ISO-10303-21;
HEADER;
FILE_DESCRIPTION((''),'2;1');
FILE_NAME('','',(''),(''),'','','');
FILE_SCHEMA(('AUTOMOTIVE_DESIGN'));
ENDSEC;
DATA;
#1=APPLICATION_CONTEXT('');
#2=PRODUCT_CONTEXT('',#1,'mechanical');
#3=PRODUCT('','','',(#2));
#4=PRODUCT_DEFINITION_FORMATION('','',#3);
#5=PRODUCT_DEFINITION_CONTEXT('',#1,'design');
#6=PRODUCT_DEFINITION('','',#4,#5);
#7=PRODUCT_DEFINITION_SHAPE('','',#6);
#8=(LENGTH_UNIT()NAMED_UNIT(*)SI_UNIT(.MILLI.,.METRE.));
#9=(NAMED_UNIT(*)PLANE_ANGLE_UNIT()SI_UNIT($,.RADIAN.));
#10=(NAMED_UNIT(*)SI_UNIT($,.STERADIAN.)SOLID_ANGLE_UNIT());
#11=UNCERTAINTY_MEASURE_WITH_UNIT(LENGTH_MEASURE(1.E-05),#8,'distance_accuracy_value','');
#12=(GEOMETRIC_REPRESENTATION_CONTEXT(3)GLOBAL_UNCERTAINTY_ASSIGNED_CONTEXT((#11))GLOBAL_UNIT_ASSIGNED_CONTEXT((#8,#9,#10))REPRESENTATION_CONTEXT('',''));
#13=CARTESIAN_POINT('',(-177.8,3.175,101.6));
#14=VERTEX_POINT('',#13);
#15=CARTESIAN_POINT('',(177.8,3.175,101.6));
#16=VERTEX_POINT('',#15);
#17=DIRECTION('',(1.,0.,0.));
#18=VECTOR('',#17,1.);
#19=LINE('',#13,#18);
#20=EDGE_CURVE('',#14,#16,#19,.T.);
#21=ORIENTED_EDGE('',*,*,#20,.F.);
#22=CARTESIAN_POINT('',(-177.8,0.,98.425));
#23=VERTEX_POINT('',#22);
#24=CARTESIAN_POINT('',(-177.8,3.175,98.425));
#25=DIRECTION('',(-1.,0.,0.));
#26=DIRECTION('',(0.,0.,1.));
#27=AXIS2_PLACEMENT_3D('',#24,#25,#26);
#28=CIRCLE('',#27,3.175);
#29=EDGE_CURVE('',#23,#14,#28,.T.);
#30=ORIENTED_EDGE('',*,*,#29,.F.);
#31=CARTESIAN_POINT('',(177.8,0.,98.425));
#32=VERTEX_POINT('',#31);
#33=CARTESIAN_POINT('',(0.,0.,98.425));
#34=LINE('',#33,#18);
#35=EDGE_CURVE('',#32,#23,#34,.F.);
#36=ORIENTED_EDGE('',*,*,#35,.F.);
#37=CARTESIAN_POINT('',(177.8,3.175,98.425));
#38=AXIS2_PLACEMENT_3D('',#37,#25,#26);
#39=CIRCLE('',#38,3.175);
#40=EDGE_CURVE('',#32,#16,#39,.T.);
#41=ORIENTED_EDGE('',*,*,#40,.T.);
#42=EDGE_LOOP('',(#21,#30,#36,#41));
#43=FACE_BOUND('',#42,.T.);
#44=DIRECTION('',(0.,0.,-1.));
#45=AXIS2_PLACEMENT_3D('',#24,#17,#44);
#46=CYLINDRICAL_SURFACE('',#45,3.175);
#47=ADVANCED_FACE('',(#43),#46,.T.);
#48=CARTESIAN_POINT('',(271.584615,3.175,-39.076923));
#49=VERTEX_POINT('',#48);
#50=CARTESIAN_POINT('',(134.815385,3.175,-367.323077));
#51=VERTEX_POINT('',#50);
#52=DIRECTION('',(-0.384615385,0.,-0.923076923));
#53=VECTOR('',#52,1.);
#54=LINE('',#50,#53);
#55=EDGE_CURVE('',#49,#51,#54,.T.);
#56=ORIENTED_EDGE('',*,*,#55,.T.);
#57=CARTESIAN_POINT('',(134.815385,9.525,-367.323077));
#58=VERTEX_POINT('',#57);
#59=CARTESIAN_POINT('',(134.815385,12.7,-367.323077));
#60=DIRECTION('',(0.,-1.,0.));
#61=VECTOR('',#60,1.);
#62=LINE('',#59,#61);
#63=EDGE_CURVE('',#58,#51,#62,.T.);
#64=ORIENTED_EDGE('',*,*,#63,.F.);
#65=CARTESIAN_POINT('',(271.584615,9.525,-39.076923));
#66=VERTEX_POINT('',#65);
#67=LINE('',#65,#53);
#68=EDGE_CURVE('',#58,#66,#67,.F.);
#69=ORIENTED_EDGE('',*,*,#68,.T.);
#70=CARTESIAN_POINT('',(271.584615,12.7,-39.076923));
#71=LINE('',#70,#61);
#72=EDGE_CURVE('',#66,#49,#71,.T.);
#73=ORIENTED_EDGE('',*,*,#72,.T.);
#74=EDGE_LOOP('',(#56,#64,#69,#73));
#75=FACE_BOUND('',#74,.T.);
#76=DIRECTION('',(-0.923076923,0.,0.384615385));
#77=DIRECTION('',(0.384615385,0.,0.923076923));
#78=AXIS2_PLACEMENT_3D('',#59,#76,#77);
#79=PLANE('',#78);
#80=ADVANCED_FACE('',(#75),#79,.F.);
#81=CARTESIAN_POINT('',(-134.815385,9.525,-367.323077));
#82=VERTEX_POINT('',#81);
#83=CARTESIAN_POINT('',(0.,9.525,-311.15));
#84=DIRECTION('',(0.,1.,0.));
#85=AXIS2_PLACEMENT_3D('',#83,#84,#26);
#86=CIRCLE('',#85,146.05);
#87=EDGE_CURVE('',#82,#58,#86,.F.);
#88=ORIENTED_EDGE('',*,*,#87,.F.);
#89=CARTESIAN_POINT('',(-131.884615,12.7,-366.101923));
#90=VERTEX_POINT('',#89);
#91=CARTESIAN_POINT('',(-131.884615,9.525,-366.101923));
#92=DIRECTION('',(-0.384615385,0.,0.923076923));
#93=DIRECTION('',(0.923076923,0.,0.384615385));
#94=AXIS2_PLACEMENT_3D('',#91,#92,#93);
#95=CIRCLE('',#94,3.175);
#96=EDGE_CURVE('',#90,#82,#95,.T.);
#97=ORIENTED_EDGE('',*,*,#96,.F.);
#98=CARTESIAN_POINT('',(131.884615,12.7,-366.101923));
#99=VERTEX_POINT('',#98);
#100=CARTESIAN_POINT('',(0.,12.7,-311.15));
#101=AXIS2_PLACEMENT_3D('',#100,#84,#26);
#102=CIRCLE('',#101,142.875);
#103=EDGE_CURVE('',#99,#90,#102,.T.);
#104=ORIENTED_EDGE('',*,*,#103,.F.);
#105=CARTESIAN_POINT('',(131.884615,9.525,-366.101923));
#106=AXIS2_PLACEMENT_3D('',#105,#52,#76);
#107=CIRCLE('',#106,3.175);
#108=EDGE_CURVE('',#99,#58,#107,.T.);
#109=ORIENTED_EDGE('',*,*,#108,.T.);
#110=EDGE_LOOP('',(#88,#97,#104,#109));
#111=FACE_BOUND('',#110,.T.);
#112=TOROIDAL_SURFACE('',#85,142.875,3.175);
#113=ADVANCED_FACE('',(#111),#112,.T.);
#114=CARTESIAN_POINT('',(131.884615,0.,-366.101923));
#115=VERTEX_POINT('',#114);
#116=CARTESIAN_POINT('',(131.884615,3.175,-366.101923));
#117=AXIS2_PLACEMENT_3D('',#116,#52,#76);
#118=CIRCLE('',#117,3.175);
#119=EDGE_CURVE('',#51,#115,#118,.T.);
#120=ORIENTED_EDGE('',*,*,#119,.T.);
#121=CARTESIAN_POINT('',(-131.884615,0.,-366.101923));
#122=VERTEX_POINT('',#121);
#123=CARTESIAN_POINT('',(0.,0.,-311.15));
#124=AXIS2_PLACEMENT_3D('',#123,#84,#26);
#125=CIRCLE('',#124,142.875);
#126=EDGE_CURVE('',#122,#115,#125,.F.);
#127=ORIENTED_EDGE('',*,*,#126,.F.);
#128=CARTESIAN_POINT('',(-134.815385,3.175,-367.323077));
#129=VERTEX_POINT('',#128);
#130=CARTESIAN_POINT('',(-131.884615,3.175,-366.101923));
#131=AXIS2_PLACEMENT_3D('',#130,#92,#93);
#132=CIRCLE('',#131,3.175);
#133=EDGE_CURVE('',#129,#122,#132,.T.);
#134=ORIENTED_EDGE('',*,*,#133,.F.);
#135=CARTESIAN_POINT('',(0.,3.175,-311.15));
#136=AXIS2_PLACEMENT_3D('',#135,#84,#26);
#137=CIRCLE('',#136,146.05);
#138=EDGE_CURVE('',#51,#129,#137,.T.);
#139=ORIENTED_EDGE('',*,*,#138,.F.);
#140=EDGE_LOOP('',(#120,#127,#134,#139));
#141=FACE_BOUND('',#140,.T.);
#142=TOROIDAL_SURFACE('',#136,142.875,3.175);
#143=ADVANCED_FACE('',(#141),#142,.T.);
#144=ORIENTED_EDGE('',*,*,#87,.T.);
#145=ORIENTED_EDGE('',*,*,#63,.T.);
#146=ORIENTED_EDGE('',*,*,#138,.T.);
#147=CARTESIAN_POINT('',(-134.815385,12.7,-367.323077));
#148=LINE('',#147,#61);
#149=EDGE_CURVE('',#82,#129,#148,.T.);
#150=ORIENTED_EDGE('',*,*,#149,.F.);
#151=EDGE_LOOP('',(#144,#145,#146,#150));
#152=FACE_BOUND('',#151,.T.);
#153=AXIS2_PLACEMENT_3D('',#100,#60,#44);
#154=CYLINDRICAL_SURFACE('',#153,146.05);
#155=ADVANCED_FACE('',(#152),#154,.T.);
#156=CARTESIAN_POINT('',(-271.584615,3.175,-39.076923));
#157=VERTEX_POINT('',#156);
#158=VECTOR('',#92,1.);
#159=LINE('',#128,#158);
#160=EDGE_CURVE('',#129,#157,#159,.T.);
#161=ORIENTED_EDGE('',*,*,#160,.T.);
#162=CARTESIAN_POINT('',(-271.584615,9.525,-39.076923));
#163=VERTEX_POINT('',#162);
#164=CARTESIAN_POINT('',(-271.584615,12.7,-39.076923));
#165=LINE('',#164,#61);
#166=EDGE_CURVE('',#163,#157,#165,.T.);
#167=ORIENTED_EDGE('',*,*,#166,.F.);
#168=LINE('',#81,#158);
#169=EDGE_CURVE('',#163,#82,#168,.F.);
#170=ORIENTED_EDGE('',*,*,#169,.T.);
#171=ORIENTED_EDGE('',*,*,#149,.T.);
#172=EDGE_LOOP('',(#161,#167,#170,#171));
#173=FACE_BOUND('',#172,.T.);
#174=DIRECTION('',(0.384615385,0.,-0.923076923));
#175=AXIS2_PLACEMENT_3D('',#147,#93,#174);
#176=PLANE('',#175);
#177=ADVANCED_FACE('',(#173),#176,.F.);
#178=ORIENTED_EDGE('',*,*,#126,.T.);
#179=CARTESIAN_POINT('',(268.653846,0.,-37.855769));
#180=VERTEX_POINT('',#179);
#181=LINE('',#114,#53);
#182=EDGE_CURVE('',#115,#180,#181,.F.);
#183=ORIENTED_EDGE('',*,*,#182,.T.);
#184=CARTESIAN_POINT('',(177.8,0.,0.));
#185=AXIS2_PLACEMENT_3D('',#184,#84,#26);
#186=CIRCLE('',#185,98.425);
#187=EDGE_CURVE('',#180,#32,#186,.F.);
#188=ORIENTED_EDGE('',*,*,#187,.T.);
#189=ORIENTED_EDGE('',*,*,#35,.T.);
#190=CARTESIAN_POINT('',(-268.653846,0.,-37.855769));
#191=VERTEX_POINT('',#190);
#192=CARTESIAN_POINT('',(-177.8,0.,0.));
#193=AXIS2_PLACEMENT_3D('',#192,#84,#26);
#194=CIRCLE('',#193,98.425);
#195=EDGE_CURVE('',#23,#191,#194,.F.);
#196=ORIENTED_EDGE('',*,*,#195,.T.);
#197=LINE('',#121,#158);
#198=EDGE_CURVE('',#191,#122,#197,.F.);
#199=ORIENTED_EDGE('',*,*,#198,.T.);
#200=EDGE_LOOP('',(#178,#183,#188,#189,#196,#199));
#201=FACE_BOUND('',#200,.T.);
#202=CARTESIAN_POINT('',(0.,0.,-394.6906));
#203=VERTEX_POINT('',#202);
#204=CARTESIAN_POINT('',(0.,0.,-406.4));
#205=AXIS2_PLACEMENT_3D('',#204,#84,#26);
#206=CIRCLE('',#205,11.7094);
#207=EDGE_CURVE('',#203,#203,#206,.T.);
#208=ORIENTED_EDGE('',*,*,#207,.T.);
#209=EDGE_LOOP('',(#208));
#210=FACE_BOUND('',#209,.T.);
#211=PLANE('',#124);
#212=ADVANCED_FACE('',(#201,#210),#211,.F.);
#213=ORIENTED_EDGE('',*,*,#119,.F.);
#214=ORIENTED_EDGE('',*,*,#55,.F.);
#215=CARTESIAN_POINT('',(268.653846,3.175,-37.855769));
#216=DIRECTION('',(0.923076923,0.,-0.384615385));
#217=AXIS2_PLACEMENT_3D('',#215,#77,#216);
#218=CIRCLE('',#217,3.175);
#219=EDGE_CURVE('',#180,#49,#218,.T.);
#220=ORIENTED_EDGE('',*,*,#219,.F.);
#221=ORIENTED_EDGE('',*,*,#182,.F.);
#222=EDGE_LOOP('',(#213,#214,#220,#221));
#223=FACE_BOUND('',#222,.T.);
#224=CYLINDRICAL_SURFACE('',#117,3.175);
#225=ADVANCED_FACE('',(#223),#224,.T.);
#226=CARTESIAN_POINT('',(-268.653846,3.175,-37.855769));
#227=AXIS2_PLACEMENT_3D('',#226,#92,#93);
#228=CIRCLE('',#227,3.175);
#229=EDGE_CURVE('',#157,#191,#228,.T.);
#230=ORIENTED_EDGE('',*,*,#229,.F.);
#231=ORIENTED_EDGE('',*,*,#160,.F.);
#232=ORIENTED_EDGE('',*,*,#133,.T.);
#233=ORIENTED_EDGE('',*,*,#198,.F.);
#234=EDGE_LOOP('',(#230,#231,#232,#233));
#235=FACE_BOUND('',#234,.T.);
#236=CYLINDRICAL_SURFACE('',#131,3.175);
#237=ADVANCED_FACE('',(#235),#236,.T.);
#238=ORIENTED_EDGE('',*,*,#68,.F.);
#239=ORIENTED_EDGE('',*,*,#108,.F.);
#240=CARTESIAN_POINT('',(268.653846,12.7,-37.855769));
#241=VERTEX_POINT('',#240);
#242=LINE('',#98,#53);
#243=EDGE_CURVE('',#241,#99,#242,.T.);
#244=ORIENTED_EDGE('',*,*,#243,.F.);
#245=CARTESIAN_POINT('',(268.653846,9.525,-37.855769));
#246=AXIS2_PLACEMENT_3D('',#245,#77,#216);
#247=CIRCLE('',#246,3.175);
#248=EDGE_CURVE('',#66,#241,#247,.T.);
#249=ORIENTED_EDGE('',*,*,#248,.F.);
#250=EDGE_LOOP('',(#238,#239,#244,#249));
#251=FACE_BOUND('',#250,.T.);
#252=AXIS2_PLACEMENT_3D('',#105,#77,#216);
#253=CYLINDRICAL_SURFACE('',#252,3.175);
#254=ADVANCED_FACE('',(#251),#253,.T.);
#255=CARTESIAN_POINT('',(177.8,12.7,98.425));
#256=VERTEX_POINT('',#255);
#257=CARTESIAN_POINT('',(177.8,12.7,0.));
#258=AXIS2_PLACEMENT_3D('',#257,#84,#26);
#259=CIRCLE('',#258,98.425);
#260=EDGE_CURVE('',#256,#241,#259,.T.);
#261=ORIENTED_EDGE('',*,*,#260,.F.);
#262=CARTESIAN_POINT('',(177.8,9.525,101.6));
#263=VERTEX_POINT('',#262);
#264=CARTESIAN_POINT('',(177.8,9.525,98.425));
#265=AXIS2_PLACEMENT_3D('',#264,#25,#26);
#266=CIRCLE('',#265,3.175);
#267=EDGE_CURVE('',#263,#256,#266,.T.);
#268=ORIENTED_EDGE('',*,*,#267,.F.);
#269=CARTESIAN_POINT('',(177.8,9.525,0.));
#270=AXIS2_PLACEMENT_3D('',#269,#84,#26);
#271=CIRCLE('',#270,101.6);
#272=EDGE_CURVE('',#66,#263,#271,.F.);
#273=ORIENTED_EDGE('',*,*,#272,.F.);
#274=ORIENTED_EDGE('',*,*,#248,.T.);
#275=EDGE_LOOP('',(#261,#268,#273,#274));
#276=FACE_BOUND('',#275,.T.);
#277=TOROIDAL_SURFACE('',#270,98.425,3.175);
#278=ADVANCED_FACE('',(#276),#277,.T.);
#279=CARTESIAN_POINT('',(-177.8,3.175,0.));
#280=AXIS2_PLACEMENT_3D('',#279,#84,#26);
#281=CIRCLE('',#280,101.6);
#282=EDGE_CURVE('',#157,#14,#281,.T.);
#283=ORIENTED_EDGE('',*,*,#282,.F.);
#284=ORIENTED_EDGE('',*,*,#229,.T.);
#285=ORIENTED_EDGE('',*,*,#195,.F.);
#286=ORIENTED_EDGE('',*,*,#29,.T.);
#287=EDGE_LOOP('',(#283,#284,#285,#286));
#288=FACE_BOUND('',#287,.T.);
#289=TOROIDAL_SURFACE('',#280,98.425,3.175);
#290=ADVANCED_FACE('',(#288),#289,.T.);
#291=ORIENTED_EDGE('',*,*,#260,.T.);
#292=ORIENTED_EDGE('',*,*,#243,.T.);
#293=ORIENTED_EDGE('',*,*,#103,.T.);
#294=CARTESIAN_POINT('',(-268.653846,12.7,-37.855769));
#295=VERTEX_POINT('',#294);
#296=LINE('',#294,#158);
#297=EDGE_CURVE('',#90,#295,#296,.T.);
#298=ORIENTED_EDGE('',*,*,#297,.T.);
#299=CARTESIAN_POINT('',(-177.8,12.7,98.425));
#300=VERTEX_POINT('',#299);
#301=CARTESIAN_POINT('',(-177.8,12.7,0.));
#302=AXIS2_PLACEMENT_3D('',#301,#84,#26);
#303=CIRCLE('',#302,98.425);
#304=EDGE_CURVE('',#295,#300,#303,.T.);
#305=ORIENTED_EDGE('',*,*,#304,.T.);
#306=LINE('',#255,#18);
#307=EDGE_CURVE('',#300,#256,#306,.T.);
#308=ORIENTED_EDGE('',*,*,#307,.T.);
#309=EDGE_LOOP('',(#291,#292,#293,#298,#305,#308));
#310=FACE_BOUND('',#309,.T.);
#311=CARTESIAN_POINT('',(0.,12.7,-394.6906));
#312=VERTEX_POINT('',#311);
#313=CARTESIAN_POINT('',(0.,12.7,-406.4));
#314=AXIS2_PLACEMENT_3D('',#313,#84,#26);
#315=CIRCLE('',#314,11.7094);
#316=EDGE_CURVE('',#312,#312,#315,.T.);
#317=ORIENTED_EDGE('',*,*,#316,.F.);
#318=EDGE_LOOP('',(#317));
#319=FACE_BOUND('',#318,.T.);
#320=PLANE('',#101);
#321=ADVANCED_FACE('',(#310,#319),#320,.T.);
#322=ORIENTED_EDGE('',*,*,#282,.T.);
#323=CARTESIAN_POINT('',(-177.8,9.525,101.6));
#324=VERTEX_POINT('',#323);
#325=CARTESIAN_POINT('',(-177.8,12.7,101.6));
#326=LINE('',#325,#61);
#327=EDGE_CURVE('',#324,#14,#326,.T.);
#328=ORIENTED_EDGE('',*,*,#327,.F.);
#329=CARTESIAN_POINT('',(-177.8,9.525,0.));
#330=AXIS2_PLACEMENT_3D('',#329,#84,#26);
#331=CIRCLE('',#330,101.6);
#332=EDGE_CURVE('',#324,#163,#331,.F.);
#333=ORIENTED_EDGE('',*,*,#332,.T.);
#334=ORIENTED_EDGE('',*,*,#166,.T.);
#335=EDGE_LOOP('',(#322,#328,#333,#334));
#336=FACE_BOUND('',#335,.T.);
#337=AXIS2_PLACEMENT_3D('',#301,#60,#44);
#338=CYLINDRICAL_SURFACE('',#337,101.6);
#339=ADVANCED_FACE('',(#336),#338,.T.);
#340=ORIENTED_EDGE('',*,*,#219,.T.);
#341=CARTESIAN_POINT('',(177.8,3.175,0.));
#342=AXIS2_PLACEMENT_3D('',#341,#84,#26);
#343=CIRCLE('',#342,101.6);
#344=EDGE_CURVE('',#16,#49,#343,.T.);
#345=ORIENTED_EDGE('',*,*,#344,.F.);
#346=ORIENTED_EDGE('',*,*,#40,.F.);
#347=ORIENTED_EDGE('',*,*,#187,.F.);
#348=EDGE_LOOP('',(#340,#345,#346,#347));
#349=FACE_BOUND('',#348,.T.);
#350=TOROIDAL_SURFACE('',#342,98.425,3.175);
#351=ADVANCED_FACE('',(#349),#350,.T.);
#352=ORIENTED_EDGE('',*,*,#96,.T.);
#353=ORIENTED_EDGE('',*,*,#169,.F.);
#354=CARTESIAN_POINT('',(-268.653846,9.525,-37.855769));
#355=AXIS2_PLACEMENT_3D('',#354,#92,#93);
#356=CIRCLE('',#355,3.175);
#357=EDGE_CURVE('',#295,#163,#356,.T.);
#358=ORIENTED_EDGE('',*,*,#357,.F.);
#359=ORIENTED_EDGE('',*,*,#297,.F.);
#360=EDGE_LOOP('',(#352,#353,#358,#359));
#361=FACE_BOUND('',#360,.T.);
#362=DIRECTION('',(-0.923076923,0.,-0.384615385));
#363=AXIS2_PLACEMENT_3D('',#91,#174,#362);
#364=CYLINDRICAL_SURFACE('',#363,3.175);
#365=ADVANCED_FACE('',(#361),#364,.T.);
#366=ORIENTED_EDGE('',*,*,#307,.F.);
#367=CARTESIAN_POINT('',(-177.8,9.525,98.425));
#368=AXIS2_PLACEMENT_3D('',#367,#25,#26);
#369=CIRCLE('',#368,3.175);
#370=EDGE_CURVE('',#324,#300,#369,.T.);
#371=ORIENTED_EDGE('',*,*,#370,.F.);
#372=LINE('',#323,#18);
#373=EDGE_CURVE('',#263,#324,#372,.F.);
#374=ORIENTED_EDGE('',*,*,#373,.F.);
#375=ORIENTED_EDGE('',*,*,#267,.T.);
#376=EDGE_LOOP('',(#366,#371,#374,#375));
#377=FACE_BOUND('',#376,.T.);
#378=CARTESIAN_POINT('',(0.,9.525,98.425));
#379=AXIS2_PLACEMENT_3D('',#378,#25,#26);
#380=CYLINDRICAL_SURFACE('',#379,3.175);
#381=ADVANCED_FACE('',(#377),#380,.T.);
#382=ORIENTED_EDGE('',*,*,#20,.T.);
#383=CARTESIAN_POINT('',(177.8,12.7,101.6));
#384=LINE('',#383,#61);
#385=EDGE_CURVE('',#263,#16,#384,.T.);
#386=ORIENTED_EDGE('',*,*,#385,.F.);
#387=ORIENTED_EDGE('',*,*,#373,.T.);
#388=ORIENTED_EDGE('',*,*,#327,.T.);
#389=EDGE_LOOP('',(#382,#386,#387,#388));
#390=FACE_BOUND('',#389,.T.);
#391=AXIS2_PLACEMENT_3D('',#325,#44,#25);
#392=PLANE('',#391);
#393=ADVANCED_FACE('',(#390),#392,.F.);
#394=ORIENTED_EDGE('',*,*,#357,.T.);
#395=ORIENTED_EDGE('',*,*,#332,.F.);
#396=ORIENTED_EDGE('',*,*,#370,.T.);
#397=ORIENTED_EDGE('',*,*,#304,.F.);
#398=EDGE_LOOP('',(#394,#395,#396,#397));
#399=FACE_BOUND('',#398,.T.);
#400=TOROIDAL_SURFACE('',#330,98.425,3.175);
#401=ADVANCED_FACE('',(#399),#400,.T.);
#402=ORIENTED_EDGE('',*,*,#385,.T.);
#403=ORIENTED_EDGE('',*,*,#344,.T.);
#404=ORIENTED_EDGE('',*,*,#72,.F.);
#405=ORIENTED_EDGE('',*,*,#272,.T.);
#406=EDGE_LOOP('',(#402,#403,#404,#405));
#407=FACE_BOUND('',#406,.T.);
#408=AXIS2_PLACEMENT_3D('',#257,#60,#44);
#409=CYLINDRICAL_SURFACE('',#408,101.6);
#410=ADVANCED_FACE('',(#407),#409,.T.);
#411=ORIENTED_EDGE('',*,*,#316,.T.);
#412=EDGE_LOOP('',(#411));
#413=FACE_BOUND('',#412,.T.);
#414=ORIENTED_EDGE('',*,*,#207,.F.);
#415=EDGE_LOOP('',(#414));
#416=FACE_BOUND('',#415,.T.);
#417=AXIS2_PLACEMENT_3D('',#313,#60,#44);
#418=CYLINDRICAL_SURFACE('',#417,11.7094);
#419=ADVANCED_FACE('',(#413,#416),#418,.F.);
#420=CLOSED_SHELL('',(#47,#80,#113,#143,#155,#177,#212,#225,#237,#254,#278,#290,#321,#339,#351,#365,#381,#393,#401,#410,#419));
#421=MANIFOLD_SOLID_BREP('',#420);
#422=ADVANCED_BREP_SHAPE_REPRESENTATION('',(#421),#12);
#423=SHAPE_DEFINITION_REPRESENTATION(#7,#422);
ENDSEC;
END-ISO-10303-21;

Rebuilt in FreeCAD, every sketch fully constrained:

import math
import FreeCAD as App
import Part
import Sketcher
from FreeCAD import Vector
Q = App.Units.Quantity


def edges_at(feature, points):
    """Names of the edges that pass closest to the given points."""
    edges = feature.Shape.Edges
    near = lambda p: min(range(len(edges)), key=lambda i: edges[i].distToShape(Part.Vertex(*p))[0])
    return sorted({f"Edge{near(p) + 1}" for p in points})

doc = App.newDocument("Part")
body = doc.addObject("PartDesign::Body", "Body")

# Sketch on XZ plane
sketch1 = body.newObject("Sketcher::SketchObject", "Sketch")
sketch1.AttachmentSupport = (doc.getObject("XZ_Plane"), [""])
sketch1.MapMode = "FlatFace"
sketch1.addGeometry([
    Part.LineSegment(Vector(272, -39, 0), Vector(135, -367, 0)),  # 0
    Part.ArcOfCircle(Part.Circle(Vector(0, -311, 0), Vector(0, 0, 1), 146), math.radians(-157), math.radians(-23)),  # 1
    Part.LineSegment(Vector(-135, -367, 0), Vector(-272, -39, 0)),  # 2
    Part.ArcOfCircle(Part.Circle(Vector(-178, 0, 0), Vector(0, 0, 1), 102), math.radians(90), math.radians(203)),  # 3
    Part.LineSegment(Vector(-178, 102, 0), Vector(178, 102, 0)),  # 4
    Part.ArcOfCircle(Part.Circle(Vector(178, 0, 0), Vector(0, 0, 1), 102), math.radians(-23), math.radians(90)),  # 5
    Part.Circle(Vector(0, -406, 0), Vector(0, 0, 1), 12),  # 6
], False)
sketch1.addConstraint([
    Sketcher.Constraint("Tangent", 0, 2, 1, 2),
    Sketcher.Constraint("Tangent", 1, 1, 2, 1),
    Sketcher.Constraint("Tangent", 2, 2, 3, 2),
    Sketcher.Constraint("Tangent", 3, 1, 4, 1),
    Sketcher.Constraint("Tangent", 4, 2, 5, 2),
    Sketcher.Constraint("Tangent", 5, 1, 0, 1),
    Sketcher.Constraint("Horizontal", 4),
    Sketcher.Constraint("Equal", 3, 5),
    Sketcher.Constraint("Symmetric", 3, 3, 5, 3, -1, 1),
    Sketcher.Constraint("PointOnObject", 1, 3, -2),
    Sketcher.Constraint("PointOnObject", 6, 3, -2),
    Sketcher.Constraint("Radius", 3, Q("4 in")),
    Sketcher.Constraint("DistanceX", 4, 1, 4, 2, Q("14 in")),
    Sketcher.Constraint("Radius", 1, Q("5.75 in")),
    Sketcher.Constraint("Distance", 0, Q("14 in")),
    Sketcher.Constraint("Diameter", 6, Q("0.922 in")),
    Sketcher.Constraint("DistanceY", 6, 3, -1, 1, Q("16 in")),
])
pad1 = body.newObject("PartDesign::Pad", "Pad")
pad1.Profile = sketch1
pad1.Length = Q("0.5 in")
pad1.Reversed = True
doc.recompute()

fillet = body.newObject("PartDesign::Fillet", "Fillet")
fillet.Base = (pad1, edges_at(pad1, [
    (-262.336, 12.7, 56.358),
    (0, 12.7, 101.6),
    (262.336, 12.7, 56.358),
    (203.2, 12.7, -203.2),
    (0, 12.7, -457.2),
    (-203.2, 12.7, -203.2),
]))
fillet.Radius = Q("0.125 in")
doc.recompute()

fillet2 = body.newObject("PartDesign::Fillet", "Fillet001")
fillet2.Base = (fillet, edges_at(fillet, [
    (203.2, 0, -203.2),
    (262.336, 0, 56.358),
    (0, 0, 101.6),
    (-262.336, 0, 56.358),
    (-203.2, 0, -203.2),
    (0, 0, -457.2),
]))
fillet2.Radius = Q("0.125 in")

doc.recompute()
